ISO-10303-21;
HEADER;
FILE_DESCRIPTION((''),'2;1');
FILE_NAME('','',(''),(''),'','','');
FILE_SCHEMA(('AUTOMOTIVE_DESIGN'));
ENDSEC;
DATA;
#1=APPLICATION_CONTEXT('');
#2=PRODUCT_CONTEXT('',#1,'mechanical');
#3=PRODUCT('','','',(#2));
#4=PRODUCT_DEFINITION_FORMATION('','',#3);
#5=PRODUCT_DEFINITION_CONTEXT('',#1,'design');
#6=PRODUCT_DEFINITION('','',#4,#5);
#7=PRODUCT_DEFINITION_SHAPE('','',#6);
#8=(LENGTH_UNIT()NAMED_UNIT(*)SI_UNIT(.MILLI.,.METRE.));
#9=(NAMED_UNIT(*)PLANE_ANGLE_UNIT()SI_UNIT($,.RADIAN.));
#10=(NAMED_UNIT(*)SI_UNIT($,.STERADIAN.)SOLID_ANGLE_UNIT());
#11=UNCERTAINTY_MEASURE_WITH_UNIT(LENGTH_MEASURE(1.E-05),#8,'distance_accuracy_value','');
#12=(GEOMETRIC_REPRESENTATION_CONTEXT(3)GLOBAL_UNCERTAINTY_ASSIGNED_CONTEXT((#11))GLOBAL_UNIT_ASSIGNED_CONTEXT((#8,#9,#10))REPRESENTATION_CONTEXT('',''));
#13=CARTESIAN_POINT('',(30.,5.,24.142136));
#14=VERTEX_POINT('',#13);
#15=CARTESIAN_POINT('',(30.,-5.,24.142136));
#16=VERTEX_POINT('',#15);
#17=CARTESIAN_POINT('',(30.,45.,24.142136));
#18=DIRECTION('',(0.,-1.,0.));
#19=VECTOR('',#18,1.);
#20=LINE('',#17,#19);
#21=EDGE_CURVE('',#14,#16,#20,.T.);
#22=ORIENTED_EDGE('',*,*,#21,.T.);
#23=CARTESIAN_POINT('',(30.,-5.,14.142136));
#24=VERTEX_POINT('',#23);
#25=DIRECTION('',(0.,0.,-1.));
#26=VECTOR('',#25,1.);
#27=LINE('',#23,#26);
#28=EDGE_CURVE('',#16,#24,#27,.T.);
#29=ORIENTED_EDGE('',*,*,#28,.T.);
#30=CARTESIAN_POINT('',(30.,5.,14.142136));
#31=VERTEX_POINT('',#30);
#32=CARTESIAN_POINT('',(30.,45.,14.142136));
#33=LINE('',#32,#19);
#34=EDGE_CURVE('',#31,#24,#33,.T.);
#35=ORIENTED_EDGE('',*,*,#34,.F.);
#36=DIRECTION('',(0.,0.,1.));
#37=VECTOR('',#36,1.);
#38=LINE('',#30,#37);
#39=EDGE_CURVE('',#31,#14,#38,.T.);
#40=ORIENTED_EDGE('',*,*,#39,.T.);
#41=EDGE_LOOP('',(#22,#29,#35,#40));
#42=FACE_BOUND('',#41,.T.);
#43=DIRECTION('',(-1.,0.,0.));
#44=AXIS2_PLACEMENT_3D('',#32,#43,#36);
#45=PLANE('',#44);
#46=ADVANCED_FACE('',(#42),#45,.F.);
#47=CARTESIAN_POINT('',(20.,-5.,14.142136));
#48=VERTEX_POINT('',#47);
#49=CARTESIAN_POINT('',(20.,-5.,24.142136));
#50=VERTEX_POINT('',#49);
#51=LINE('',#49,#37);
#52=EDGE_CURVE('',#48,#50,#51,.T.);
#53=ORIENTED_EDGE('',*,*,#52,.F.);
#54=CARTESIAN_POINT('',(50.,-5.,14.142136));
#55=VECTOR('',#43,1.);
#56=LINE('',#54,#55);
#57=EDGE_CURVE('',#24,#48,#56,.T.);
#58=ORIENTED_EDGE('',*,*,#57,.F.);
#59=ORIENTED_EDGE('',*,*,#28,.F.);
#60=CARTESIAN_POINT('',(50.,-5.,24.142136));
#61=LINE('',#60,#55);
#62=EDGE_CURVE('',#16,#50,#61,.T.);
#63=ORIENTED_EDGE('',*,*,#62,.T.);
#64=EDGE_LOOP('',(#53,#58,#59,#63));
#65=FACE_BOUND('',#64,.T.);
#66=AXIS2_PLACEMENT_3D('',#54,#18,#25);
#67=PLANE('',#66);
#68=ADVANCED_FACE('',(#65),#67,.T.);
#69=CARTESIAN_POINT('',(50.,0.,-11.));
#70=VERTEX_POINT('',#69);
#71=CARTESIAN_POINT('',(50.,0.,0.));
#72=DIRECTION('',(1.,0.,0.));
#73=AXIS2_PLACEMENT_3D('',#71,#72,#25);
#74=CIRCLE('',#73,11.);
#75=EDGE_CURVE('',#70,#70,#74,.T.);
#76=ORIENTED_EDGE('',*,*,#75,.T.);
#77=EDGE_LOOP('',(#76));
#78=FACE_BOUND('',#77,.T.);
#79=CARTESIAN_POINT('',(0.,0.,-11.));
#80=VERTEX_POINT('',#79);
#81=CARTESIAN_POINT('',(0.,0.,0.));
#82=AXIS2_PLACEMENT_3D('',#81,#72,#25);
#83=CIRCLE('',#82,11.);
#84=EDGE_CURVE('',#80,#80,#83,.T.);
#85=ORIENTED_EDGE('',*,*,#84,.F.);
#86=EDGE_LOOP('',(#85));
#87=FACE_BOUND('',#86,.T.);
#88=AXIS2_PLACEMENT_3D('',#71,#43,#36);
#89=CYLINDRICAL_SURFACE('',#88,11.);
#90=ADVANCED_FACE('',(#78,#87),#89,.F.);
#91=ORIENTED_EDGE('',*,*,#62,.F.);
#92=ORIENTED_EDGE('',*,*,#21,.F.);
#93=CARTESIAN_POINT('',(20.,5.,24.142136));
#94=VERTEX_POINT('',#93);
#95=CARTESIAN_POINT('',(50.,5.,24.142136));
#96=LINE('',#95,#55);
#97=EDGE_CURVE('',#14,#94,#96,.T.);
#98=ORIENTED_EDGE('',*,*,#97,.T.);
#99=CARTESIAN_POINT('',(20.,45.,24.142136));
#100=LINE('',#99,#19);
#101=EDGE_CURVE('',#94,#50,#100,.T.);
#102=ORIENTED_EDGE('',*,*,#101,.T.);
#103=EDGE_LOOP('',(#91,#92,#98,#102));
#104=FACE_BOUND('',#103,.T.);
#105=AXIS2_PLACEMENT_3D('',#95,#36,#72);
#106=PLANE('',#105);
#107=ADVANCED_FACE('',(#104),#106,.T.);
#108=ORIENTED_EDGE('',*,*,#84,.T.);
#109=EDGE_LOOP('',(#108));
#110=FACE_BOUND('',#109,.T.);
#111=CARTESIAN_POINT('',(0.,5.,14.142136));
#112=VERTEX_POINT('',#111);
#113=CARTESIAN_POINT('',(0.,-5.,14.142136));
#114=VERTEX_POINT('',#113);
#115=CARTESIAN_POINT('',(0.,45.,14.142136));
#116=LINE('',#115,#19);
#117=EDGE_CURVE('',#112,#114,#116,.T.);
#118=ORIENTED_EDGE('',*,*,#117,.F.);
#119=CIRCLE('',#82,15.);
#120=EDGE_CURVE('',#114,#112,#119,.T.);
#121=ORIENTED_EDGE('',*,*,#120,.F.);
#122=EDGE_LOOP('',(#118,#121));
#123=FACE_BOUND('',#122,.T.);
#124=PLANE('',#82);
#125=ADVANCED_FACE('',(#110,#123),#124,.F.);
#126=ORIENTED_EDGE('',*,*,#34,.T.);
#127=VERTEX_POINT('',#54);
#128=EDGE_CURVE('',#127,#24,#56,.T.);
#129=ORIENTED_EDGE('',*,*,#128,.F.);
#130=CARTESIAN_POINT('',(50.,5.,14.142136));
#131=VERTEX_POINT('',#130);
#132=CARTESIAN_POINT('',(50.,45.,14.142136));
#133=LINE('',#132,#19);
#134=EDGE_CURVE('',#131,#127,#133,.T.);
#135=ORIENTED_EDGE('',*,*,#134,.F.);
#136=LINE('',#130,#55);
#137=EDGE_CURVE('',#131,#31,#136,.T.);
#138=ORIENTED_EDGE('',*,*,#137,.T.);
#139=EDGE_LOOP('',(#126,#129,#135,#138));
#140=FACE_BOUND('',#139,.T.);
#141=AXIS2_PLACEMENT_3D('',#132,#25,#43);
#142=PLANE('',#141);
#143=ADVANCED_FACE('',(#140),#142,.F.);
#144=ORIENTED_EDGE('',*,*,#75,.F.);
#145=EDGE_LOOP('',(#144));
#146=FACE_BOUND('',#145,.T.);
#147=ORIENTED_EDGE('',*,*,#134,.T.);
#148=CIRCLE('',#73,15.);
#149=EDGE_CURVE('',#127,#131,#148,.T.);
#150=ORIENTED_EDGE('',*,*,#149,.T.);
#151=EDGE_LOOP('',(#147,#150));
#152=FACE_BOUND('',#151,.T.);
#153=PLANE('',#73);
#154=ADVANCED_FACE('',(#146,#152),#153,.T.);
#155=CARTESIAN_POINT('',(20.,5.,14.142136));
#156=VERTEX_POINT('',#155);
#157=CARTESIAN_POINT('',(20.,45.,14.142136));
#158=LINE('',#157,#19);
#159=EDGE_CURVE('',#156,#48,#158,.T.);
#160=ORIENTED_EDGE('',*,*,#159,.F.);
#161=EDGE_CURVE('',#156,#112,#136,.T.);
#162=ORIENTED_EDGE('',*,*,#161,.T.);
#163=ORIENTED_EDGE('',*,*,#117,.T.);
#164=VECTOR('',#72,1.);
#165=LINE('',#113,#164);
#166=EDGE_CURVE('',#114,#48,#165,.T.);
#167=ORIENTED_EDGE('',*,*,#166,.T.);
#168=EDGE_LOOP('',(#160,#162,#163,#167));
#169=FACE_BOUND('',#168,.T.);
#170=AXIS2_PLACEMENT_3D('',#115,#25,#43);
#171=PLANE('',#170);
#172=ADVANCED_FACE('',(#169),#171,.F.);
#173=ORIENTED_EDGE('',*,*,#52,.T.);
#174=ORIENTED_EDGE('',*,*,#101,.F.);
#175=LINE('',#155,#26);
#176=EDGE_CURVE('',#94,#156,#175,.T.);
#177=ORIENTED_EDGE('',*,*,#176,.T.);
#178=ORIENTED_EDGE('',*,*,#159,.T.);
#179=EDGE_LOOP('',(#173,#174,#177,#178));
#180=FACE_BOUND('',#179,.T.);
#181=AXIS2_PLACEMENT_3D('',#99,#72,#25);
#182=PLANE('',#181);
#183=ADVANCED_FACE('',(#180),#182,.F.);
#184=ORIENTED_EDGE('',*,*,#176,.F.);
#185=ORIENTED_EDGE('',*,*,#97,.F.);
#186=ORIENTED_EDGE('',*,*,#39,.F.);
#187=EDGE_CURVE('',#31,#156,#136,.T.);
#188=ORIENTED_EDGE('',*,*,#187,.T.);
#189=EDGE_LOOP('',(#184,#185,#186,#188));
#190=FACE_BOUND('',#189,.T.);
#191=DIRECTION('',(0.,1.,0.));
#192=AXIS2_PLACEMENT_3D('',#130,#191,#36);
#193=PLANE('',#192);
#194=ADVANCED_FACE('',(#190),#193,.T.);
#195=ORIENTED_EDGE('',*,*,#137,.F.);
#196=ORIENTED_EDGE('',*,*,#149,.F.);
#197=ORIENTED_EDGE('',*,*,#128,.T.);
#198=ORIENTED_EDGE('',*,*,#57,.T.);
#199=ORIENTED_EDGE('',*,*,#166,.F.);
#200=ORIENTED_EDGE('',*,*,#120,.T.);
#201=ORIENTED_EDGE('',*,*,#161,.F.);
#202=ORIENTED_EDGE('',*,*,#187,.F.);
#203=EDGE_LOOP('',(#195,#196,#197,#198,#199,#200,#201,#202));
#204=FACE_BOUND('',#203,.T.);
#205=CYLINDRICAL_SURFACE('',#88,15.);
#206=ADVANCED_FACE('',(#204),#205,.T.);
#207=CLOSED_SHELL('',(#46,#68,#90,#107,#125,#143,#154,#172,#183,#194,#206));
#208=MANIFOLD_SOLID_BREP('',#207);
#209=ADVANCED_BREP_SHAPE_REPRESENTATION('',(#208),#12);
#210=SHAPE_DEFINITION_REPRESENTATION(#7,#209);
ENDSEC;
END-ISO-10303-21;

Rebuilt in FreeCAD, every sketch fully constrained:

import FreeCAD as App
import Part
import Sketcher

V = App.Vector
Q = App.Units.Quantity


def add_polygon(sketch, points):
    """Adds a closed chain of lines whose ends are joined by coincident constraints."""
    first, n = sketch.GeometryCount, len(points)
    for a, b in zip(points, points[1:] + points[:1]):
        sketch.addGeometry(Part.LineSegment(App.Vector(*a, 0), App.Vector(*b, 0)), False)
    for i in range(n):
        sketch.addConstraint(Sketcher.Constraint("Coincident", first + i, 2, first + (i + 1) % n, 1))

doc = App.newDocument("Part")
params = doc.addObject("Spreadsheet::Sheet", "Params")
for row, (alias, value) in enumerate([
    ("sketch1_diameter", "30 mm"),
    ("sketch1_diameter2", "22 mm"),
    ("pad1_length", "50 mm"),
    ("sketch2_width", "10 mm"),
    ("pad2_length", "50 mm"),
    ("sketch3_width", "20 mm"),
    ("sketch3_height", "10 mm"),
    ("pocket1_length", "50 mm"),
], start=1):
    params.set(f"A{row}", alias)
    params.set(f"B{row}", "=" + value)
    params.setAlias(f"B{row}", alias)

body = doc.addObject("PartDesign::Body", "Body")

# Sketch on YZ plane
sketch1 = doc.addObject("Sketcher::SketchObject", "Sketch")
body.addObject(sketch1)
sketch1.AttachmentSupport = (doc.YZ_Plane, [""])
sketch1.MapMode = "FlatFace"
sketch1.addGeometry([
    Part.Circle(V(0, 0, 0), V(0, 0, 1), 15),
    Part.Circle(V(0, 0, 0), V(0, 0, 1), 11),
], False)
sketch1.addConstraint([
    Sketcher.Constraint("Coincident", 0, 3, -1, 1),
    Sketcher.Constraint("Coincident", 1, 3, -1, 1),
    Sketcher.Constraint("Diameter", 0, Q("30 mm")),
    Sketcher.Constraint("Diameter", 1, Q("22 mm")),
])
sketch1.setExpression("Constraints[2]", "Params.sketch1_diameter")
sketch1.setExpression("Constraints[3]", "Params.sketch1_diameter2")
pad1 = doc.addObject("PartDesign::Pad", "Pad")
body.addObject(pad1)
pad1.Profile = sketch1
pad1.setExpression("Length", "Params.pad1_length")

# Sketch on YZ plane
sketch2 = doc.addObject("Sketcher::SketchObject", "Sketch001")
body.addObject(sketch2)
sketch2.AttachmentSupport = (doc.YZ_Plane, [""])
sketch2.MapMode = "FlatFace"
add_polygon(sketch2, [(5, 14), (-5, 14), (-5, 24), (5, 24)])  # lines 0-3
sketch2.addConstraint([
    Sketcher.Constraint("Horizontal", 0),
    Sketcher.Constraint("Vertical", 1),
    Sketcher.Constraint("Horizontal", 2),
    Sketcher.Constraint("Vertical", 3),
    Sketcher.Constraint("Equal", 2, 1),
    Sketcher.Constraint("DistanceX", 0, 2, 0, 1, Q("10 mm")),
    Sketcher.Constraint("DistanceX", 0, 2, -1, 1, Q("5 mm")),
    Sketcher.Constraint("DistanceY", -1, 1, 0, 2, Q("14.142136 mm")),
])
sketch2.setExpression("Constraints[9]", "Params.sketch2_width")
pad2 = doc.addObject("PartDesign::Pad", "Pad001")
body.addObject(pad2)
pad2.Profile = sketch2
pad2.setExpression("Length", "Params.pad2_length")

# Sketch on XZ plane
sketch3 = doc.addObject("Sketcher::SketchObject", "Sketch002")
body.addObject(sketch3)
sketch3.AttachmentSupport = (doc.XZ_Plane, [""])
sketch3.MapMode = "FlatFace"
sketch3.AttachmentOffset = App.Placement(V(0, 0, 5), App.Rotation())
add_polygon(sketch3, [(20, 14), (20, 24), (0, 24), (0, 14)])  # lines 0-3
add_polygon(sketch3, [(50, 14), (50, 24), (30, 24), (30, 14)])  # lines 4-7
sketch3.addConstraint([
    Sketcher.Constraint("Vertical", 0),
    Sketcher.Constraint("Horizontal", 1),
    Sketcher.Constraint("Vertical", 2),
    Sketcher.Constraint("Horizontal", 3),
    Sketcher.Constraint("Vertical", 4),
    Sketcher.Constraint("Horizontal", 5),
    Sketcher.Constraint("Vertical", 6),
    Sketcher.Constraint("Horizontal", 7),
    Sketcher.Constraint("PointOnObject", 1, 2, -2),
    Sketcher.Constraint("Horizontal", 1, 2, 4, 2),
    Sketcher.Constraint("Horizontal", 3, 2, 6, 2),
    Sketcher.Constraint("Equal", 3, 5),
    Sketcher.Constraint("DistanceX", 1, 2, 1, 1, Q("20 mm")),
    Sketcher.Constraint("DistanceY", 0, 1, 0, 2, Q("10 mm")),
    Sketcher.Constraint("DistanceX", -1, 1, 4, 2, Q("50 mm")),
    Sketcher.Constraint("DistanceY", -1, 1, 0, 2, Q("24.142136 mm")),
])
sketch3.setExpression("Constraints[20]", "Params.sketch3_width")
sketch3.setExpression("Constraints[21]", "Params.sketch3_height")
pocket1 = doc.addObject("PartDesign::Pocket", "Pocket")
body.addObject(pocket1)
pocket1.Profile = sketch3
pocket1.setExpression("Length", "Params.pocket1_length")

doc.recompute()
